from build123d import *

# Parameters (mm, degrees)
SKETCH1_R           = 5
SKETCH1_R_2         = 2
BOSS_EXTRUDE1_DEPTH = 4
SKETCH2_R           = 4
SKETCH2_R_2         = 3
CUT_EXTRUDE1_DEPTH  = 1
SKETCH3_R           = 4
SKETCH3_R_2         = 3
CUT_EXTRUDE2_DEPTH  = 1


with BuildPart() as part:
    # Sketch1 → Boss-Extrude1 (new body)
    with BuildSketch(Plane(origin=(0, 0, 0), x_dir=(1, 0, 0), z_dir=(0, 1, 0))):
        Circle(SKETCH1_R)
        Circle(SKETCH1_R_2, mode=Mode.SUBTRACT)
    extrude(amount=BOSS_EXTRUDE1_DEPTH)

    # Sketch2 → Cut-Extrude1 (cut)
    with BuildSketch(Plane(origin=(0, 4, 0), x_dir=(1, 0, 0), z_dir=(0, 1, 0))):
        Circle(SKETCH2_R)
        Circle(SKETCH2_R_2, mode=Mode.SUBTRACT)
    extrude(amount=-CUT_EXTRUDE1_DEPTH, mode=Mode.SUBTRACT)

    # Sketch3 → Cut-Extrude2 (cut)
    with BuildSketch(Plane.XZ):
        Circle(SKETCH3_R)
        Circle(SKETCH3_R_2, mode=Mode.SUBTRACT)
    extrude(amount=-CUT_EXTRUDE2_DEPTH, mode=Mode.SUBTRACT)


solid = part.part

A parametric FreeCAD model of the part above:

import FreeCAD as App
import Part
import Sketcher

doc = App.newDocument("Part")
body = doc.addObject("PartDesign::Body", "Body")

# Sketch on XZ plane
sketch1 = body.newObject("Sketcher::SketchObject", "Sketch")
sketch1.AttachmentSupport = (doc.getObject("XZ_Plane"), [""])
sketch1.MapMode = "FlatFace"
sketch1.addGeometry(Part.Circle(App.Vector(0, 0, 0), App.Vector(0, 0, 1), 5), False)
sketch1.addGeometry(Part.Circle(App.Vector(0, 0, 0), App.Vector(0, 0, 1), 2), False)
sketch1.addConstraint(Sketcher.Constraint("Coincident", 0, 3, -1, 1))
sketch1.addConstraint(Sketcher.Constraint("Coincident", 1, 3, -1, 1))
sketch1.addConstraint(Sketcher.Constraint("Diameter", 0, 10.0))
sketch1.addConstraint(Sketcher.Constraint("Diameter", 1, 4.0))
pad1 = body.newObject("PartDesign::Pad", "Pad")
pad1.Profile = sketch1
pad1.Length = 4
pad1.Reversed = True

# Sketch on XZ plane
sketch2 = body.newObject("Sketcher::SketchObject", "Sketch001")
sketch2.AttachmentSupport = (doc.getObject("XZ_Plane"), [""])
sketch2.MapMode = "FlatFace"
sketch2.AttachmentOffset = App.Placement(App.Vector(0, 0, -4), App.Rotation())
sketch2.addGeometry(Part.Circle(App.Vector(0, 0, 0), App.Vector(0, 0, 1), 4), False)
sketch2.addGeometry(Part.Circle(App.Vector(0, 0, 0), App.Vector(0, 0, 1), 3), False)
sketch2.addConstraint(Sketcher.Constraint("Coincident", 0, 3, -1, 1))
sketch2.addConstraint(Sketcher.Constraint("Coincident", 1, 3, -1, 1))
sketch2.addConstraint(Sketcher.Constraint("Diameter", 0, 8.0))
sketch2.addConstraint(Sketcher.Constraint("Diameter", 1, 6.0))
pocket1 = body.newObject("PartDesign::Pocket", "Pocket")
pocket1.Profile = sketch2
pocket1.Length = 1
pocket1.Reversed = True

# Sketch on XZ plane
sketch3 = body.newObject("Sketcher::SketchObject", "Sketch002")
sketch3.AttachmentSupport = (doc.getObject("XZ_Plane"), [""])
sketch3.MapMode = "FlatFace"
sketch3.addGeometry(Part.Circle(App.Vector(0, 0, 0), App.Vector(0, 0, 1), 4), False)
sketch3.addGeometry(Part.Circle(App.Vector(0, 0, 0), App.Vector(0, 0, 1), 3), False)
sketch3.addConstraint(Sketcher.Constraint("Coincident", 0, 3, -1, 1))
sketch3.addConstraint(Sketcher.Constraint("Coincident", 1, 3, -1, 1))
sketch3.addConstraint(Sketcher.Constraint("Diameter", 0, 8.0))
sketch3.addConstraint(Sketcher.Constraint("Diameter", 1, 6.0))
pocket2 = body.newObject("PartDesign::Pocket", "Pocket001")
pocket2.Profile = sketch3
pocket2.Length = 1

doc.recompute()
